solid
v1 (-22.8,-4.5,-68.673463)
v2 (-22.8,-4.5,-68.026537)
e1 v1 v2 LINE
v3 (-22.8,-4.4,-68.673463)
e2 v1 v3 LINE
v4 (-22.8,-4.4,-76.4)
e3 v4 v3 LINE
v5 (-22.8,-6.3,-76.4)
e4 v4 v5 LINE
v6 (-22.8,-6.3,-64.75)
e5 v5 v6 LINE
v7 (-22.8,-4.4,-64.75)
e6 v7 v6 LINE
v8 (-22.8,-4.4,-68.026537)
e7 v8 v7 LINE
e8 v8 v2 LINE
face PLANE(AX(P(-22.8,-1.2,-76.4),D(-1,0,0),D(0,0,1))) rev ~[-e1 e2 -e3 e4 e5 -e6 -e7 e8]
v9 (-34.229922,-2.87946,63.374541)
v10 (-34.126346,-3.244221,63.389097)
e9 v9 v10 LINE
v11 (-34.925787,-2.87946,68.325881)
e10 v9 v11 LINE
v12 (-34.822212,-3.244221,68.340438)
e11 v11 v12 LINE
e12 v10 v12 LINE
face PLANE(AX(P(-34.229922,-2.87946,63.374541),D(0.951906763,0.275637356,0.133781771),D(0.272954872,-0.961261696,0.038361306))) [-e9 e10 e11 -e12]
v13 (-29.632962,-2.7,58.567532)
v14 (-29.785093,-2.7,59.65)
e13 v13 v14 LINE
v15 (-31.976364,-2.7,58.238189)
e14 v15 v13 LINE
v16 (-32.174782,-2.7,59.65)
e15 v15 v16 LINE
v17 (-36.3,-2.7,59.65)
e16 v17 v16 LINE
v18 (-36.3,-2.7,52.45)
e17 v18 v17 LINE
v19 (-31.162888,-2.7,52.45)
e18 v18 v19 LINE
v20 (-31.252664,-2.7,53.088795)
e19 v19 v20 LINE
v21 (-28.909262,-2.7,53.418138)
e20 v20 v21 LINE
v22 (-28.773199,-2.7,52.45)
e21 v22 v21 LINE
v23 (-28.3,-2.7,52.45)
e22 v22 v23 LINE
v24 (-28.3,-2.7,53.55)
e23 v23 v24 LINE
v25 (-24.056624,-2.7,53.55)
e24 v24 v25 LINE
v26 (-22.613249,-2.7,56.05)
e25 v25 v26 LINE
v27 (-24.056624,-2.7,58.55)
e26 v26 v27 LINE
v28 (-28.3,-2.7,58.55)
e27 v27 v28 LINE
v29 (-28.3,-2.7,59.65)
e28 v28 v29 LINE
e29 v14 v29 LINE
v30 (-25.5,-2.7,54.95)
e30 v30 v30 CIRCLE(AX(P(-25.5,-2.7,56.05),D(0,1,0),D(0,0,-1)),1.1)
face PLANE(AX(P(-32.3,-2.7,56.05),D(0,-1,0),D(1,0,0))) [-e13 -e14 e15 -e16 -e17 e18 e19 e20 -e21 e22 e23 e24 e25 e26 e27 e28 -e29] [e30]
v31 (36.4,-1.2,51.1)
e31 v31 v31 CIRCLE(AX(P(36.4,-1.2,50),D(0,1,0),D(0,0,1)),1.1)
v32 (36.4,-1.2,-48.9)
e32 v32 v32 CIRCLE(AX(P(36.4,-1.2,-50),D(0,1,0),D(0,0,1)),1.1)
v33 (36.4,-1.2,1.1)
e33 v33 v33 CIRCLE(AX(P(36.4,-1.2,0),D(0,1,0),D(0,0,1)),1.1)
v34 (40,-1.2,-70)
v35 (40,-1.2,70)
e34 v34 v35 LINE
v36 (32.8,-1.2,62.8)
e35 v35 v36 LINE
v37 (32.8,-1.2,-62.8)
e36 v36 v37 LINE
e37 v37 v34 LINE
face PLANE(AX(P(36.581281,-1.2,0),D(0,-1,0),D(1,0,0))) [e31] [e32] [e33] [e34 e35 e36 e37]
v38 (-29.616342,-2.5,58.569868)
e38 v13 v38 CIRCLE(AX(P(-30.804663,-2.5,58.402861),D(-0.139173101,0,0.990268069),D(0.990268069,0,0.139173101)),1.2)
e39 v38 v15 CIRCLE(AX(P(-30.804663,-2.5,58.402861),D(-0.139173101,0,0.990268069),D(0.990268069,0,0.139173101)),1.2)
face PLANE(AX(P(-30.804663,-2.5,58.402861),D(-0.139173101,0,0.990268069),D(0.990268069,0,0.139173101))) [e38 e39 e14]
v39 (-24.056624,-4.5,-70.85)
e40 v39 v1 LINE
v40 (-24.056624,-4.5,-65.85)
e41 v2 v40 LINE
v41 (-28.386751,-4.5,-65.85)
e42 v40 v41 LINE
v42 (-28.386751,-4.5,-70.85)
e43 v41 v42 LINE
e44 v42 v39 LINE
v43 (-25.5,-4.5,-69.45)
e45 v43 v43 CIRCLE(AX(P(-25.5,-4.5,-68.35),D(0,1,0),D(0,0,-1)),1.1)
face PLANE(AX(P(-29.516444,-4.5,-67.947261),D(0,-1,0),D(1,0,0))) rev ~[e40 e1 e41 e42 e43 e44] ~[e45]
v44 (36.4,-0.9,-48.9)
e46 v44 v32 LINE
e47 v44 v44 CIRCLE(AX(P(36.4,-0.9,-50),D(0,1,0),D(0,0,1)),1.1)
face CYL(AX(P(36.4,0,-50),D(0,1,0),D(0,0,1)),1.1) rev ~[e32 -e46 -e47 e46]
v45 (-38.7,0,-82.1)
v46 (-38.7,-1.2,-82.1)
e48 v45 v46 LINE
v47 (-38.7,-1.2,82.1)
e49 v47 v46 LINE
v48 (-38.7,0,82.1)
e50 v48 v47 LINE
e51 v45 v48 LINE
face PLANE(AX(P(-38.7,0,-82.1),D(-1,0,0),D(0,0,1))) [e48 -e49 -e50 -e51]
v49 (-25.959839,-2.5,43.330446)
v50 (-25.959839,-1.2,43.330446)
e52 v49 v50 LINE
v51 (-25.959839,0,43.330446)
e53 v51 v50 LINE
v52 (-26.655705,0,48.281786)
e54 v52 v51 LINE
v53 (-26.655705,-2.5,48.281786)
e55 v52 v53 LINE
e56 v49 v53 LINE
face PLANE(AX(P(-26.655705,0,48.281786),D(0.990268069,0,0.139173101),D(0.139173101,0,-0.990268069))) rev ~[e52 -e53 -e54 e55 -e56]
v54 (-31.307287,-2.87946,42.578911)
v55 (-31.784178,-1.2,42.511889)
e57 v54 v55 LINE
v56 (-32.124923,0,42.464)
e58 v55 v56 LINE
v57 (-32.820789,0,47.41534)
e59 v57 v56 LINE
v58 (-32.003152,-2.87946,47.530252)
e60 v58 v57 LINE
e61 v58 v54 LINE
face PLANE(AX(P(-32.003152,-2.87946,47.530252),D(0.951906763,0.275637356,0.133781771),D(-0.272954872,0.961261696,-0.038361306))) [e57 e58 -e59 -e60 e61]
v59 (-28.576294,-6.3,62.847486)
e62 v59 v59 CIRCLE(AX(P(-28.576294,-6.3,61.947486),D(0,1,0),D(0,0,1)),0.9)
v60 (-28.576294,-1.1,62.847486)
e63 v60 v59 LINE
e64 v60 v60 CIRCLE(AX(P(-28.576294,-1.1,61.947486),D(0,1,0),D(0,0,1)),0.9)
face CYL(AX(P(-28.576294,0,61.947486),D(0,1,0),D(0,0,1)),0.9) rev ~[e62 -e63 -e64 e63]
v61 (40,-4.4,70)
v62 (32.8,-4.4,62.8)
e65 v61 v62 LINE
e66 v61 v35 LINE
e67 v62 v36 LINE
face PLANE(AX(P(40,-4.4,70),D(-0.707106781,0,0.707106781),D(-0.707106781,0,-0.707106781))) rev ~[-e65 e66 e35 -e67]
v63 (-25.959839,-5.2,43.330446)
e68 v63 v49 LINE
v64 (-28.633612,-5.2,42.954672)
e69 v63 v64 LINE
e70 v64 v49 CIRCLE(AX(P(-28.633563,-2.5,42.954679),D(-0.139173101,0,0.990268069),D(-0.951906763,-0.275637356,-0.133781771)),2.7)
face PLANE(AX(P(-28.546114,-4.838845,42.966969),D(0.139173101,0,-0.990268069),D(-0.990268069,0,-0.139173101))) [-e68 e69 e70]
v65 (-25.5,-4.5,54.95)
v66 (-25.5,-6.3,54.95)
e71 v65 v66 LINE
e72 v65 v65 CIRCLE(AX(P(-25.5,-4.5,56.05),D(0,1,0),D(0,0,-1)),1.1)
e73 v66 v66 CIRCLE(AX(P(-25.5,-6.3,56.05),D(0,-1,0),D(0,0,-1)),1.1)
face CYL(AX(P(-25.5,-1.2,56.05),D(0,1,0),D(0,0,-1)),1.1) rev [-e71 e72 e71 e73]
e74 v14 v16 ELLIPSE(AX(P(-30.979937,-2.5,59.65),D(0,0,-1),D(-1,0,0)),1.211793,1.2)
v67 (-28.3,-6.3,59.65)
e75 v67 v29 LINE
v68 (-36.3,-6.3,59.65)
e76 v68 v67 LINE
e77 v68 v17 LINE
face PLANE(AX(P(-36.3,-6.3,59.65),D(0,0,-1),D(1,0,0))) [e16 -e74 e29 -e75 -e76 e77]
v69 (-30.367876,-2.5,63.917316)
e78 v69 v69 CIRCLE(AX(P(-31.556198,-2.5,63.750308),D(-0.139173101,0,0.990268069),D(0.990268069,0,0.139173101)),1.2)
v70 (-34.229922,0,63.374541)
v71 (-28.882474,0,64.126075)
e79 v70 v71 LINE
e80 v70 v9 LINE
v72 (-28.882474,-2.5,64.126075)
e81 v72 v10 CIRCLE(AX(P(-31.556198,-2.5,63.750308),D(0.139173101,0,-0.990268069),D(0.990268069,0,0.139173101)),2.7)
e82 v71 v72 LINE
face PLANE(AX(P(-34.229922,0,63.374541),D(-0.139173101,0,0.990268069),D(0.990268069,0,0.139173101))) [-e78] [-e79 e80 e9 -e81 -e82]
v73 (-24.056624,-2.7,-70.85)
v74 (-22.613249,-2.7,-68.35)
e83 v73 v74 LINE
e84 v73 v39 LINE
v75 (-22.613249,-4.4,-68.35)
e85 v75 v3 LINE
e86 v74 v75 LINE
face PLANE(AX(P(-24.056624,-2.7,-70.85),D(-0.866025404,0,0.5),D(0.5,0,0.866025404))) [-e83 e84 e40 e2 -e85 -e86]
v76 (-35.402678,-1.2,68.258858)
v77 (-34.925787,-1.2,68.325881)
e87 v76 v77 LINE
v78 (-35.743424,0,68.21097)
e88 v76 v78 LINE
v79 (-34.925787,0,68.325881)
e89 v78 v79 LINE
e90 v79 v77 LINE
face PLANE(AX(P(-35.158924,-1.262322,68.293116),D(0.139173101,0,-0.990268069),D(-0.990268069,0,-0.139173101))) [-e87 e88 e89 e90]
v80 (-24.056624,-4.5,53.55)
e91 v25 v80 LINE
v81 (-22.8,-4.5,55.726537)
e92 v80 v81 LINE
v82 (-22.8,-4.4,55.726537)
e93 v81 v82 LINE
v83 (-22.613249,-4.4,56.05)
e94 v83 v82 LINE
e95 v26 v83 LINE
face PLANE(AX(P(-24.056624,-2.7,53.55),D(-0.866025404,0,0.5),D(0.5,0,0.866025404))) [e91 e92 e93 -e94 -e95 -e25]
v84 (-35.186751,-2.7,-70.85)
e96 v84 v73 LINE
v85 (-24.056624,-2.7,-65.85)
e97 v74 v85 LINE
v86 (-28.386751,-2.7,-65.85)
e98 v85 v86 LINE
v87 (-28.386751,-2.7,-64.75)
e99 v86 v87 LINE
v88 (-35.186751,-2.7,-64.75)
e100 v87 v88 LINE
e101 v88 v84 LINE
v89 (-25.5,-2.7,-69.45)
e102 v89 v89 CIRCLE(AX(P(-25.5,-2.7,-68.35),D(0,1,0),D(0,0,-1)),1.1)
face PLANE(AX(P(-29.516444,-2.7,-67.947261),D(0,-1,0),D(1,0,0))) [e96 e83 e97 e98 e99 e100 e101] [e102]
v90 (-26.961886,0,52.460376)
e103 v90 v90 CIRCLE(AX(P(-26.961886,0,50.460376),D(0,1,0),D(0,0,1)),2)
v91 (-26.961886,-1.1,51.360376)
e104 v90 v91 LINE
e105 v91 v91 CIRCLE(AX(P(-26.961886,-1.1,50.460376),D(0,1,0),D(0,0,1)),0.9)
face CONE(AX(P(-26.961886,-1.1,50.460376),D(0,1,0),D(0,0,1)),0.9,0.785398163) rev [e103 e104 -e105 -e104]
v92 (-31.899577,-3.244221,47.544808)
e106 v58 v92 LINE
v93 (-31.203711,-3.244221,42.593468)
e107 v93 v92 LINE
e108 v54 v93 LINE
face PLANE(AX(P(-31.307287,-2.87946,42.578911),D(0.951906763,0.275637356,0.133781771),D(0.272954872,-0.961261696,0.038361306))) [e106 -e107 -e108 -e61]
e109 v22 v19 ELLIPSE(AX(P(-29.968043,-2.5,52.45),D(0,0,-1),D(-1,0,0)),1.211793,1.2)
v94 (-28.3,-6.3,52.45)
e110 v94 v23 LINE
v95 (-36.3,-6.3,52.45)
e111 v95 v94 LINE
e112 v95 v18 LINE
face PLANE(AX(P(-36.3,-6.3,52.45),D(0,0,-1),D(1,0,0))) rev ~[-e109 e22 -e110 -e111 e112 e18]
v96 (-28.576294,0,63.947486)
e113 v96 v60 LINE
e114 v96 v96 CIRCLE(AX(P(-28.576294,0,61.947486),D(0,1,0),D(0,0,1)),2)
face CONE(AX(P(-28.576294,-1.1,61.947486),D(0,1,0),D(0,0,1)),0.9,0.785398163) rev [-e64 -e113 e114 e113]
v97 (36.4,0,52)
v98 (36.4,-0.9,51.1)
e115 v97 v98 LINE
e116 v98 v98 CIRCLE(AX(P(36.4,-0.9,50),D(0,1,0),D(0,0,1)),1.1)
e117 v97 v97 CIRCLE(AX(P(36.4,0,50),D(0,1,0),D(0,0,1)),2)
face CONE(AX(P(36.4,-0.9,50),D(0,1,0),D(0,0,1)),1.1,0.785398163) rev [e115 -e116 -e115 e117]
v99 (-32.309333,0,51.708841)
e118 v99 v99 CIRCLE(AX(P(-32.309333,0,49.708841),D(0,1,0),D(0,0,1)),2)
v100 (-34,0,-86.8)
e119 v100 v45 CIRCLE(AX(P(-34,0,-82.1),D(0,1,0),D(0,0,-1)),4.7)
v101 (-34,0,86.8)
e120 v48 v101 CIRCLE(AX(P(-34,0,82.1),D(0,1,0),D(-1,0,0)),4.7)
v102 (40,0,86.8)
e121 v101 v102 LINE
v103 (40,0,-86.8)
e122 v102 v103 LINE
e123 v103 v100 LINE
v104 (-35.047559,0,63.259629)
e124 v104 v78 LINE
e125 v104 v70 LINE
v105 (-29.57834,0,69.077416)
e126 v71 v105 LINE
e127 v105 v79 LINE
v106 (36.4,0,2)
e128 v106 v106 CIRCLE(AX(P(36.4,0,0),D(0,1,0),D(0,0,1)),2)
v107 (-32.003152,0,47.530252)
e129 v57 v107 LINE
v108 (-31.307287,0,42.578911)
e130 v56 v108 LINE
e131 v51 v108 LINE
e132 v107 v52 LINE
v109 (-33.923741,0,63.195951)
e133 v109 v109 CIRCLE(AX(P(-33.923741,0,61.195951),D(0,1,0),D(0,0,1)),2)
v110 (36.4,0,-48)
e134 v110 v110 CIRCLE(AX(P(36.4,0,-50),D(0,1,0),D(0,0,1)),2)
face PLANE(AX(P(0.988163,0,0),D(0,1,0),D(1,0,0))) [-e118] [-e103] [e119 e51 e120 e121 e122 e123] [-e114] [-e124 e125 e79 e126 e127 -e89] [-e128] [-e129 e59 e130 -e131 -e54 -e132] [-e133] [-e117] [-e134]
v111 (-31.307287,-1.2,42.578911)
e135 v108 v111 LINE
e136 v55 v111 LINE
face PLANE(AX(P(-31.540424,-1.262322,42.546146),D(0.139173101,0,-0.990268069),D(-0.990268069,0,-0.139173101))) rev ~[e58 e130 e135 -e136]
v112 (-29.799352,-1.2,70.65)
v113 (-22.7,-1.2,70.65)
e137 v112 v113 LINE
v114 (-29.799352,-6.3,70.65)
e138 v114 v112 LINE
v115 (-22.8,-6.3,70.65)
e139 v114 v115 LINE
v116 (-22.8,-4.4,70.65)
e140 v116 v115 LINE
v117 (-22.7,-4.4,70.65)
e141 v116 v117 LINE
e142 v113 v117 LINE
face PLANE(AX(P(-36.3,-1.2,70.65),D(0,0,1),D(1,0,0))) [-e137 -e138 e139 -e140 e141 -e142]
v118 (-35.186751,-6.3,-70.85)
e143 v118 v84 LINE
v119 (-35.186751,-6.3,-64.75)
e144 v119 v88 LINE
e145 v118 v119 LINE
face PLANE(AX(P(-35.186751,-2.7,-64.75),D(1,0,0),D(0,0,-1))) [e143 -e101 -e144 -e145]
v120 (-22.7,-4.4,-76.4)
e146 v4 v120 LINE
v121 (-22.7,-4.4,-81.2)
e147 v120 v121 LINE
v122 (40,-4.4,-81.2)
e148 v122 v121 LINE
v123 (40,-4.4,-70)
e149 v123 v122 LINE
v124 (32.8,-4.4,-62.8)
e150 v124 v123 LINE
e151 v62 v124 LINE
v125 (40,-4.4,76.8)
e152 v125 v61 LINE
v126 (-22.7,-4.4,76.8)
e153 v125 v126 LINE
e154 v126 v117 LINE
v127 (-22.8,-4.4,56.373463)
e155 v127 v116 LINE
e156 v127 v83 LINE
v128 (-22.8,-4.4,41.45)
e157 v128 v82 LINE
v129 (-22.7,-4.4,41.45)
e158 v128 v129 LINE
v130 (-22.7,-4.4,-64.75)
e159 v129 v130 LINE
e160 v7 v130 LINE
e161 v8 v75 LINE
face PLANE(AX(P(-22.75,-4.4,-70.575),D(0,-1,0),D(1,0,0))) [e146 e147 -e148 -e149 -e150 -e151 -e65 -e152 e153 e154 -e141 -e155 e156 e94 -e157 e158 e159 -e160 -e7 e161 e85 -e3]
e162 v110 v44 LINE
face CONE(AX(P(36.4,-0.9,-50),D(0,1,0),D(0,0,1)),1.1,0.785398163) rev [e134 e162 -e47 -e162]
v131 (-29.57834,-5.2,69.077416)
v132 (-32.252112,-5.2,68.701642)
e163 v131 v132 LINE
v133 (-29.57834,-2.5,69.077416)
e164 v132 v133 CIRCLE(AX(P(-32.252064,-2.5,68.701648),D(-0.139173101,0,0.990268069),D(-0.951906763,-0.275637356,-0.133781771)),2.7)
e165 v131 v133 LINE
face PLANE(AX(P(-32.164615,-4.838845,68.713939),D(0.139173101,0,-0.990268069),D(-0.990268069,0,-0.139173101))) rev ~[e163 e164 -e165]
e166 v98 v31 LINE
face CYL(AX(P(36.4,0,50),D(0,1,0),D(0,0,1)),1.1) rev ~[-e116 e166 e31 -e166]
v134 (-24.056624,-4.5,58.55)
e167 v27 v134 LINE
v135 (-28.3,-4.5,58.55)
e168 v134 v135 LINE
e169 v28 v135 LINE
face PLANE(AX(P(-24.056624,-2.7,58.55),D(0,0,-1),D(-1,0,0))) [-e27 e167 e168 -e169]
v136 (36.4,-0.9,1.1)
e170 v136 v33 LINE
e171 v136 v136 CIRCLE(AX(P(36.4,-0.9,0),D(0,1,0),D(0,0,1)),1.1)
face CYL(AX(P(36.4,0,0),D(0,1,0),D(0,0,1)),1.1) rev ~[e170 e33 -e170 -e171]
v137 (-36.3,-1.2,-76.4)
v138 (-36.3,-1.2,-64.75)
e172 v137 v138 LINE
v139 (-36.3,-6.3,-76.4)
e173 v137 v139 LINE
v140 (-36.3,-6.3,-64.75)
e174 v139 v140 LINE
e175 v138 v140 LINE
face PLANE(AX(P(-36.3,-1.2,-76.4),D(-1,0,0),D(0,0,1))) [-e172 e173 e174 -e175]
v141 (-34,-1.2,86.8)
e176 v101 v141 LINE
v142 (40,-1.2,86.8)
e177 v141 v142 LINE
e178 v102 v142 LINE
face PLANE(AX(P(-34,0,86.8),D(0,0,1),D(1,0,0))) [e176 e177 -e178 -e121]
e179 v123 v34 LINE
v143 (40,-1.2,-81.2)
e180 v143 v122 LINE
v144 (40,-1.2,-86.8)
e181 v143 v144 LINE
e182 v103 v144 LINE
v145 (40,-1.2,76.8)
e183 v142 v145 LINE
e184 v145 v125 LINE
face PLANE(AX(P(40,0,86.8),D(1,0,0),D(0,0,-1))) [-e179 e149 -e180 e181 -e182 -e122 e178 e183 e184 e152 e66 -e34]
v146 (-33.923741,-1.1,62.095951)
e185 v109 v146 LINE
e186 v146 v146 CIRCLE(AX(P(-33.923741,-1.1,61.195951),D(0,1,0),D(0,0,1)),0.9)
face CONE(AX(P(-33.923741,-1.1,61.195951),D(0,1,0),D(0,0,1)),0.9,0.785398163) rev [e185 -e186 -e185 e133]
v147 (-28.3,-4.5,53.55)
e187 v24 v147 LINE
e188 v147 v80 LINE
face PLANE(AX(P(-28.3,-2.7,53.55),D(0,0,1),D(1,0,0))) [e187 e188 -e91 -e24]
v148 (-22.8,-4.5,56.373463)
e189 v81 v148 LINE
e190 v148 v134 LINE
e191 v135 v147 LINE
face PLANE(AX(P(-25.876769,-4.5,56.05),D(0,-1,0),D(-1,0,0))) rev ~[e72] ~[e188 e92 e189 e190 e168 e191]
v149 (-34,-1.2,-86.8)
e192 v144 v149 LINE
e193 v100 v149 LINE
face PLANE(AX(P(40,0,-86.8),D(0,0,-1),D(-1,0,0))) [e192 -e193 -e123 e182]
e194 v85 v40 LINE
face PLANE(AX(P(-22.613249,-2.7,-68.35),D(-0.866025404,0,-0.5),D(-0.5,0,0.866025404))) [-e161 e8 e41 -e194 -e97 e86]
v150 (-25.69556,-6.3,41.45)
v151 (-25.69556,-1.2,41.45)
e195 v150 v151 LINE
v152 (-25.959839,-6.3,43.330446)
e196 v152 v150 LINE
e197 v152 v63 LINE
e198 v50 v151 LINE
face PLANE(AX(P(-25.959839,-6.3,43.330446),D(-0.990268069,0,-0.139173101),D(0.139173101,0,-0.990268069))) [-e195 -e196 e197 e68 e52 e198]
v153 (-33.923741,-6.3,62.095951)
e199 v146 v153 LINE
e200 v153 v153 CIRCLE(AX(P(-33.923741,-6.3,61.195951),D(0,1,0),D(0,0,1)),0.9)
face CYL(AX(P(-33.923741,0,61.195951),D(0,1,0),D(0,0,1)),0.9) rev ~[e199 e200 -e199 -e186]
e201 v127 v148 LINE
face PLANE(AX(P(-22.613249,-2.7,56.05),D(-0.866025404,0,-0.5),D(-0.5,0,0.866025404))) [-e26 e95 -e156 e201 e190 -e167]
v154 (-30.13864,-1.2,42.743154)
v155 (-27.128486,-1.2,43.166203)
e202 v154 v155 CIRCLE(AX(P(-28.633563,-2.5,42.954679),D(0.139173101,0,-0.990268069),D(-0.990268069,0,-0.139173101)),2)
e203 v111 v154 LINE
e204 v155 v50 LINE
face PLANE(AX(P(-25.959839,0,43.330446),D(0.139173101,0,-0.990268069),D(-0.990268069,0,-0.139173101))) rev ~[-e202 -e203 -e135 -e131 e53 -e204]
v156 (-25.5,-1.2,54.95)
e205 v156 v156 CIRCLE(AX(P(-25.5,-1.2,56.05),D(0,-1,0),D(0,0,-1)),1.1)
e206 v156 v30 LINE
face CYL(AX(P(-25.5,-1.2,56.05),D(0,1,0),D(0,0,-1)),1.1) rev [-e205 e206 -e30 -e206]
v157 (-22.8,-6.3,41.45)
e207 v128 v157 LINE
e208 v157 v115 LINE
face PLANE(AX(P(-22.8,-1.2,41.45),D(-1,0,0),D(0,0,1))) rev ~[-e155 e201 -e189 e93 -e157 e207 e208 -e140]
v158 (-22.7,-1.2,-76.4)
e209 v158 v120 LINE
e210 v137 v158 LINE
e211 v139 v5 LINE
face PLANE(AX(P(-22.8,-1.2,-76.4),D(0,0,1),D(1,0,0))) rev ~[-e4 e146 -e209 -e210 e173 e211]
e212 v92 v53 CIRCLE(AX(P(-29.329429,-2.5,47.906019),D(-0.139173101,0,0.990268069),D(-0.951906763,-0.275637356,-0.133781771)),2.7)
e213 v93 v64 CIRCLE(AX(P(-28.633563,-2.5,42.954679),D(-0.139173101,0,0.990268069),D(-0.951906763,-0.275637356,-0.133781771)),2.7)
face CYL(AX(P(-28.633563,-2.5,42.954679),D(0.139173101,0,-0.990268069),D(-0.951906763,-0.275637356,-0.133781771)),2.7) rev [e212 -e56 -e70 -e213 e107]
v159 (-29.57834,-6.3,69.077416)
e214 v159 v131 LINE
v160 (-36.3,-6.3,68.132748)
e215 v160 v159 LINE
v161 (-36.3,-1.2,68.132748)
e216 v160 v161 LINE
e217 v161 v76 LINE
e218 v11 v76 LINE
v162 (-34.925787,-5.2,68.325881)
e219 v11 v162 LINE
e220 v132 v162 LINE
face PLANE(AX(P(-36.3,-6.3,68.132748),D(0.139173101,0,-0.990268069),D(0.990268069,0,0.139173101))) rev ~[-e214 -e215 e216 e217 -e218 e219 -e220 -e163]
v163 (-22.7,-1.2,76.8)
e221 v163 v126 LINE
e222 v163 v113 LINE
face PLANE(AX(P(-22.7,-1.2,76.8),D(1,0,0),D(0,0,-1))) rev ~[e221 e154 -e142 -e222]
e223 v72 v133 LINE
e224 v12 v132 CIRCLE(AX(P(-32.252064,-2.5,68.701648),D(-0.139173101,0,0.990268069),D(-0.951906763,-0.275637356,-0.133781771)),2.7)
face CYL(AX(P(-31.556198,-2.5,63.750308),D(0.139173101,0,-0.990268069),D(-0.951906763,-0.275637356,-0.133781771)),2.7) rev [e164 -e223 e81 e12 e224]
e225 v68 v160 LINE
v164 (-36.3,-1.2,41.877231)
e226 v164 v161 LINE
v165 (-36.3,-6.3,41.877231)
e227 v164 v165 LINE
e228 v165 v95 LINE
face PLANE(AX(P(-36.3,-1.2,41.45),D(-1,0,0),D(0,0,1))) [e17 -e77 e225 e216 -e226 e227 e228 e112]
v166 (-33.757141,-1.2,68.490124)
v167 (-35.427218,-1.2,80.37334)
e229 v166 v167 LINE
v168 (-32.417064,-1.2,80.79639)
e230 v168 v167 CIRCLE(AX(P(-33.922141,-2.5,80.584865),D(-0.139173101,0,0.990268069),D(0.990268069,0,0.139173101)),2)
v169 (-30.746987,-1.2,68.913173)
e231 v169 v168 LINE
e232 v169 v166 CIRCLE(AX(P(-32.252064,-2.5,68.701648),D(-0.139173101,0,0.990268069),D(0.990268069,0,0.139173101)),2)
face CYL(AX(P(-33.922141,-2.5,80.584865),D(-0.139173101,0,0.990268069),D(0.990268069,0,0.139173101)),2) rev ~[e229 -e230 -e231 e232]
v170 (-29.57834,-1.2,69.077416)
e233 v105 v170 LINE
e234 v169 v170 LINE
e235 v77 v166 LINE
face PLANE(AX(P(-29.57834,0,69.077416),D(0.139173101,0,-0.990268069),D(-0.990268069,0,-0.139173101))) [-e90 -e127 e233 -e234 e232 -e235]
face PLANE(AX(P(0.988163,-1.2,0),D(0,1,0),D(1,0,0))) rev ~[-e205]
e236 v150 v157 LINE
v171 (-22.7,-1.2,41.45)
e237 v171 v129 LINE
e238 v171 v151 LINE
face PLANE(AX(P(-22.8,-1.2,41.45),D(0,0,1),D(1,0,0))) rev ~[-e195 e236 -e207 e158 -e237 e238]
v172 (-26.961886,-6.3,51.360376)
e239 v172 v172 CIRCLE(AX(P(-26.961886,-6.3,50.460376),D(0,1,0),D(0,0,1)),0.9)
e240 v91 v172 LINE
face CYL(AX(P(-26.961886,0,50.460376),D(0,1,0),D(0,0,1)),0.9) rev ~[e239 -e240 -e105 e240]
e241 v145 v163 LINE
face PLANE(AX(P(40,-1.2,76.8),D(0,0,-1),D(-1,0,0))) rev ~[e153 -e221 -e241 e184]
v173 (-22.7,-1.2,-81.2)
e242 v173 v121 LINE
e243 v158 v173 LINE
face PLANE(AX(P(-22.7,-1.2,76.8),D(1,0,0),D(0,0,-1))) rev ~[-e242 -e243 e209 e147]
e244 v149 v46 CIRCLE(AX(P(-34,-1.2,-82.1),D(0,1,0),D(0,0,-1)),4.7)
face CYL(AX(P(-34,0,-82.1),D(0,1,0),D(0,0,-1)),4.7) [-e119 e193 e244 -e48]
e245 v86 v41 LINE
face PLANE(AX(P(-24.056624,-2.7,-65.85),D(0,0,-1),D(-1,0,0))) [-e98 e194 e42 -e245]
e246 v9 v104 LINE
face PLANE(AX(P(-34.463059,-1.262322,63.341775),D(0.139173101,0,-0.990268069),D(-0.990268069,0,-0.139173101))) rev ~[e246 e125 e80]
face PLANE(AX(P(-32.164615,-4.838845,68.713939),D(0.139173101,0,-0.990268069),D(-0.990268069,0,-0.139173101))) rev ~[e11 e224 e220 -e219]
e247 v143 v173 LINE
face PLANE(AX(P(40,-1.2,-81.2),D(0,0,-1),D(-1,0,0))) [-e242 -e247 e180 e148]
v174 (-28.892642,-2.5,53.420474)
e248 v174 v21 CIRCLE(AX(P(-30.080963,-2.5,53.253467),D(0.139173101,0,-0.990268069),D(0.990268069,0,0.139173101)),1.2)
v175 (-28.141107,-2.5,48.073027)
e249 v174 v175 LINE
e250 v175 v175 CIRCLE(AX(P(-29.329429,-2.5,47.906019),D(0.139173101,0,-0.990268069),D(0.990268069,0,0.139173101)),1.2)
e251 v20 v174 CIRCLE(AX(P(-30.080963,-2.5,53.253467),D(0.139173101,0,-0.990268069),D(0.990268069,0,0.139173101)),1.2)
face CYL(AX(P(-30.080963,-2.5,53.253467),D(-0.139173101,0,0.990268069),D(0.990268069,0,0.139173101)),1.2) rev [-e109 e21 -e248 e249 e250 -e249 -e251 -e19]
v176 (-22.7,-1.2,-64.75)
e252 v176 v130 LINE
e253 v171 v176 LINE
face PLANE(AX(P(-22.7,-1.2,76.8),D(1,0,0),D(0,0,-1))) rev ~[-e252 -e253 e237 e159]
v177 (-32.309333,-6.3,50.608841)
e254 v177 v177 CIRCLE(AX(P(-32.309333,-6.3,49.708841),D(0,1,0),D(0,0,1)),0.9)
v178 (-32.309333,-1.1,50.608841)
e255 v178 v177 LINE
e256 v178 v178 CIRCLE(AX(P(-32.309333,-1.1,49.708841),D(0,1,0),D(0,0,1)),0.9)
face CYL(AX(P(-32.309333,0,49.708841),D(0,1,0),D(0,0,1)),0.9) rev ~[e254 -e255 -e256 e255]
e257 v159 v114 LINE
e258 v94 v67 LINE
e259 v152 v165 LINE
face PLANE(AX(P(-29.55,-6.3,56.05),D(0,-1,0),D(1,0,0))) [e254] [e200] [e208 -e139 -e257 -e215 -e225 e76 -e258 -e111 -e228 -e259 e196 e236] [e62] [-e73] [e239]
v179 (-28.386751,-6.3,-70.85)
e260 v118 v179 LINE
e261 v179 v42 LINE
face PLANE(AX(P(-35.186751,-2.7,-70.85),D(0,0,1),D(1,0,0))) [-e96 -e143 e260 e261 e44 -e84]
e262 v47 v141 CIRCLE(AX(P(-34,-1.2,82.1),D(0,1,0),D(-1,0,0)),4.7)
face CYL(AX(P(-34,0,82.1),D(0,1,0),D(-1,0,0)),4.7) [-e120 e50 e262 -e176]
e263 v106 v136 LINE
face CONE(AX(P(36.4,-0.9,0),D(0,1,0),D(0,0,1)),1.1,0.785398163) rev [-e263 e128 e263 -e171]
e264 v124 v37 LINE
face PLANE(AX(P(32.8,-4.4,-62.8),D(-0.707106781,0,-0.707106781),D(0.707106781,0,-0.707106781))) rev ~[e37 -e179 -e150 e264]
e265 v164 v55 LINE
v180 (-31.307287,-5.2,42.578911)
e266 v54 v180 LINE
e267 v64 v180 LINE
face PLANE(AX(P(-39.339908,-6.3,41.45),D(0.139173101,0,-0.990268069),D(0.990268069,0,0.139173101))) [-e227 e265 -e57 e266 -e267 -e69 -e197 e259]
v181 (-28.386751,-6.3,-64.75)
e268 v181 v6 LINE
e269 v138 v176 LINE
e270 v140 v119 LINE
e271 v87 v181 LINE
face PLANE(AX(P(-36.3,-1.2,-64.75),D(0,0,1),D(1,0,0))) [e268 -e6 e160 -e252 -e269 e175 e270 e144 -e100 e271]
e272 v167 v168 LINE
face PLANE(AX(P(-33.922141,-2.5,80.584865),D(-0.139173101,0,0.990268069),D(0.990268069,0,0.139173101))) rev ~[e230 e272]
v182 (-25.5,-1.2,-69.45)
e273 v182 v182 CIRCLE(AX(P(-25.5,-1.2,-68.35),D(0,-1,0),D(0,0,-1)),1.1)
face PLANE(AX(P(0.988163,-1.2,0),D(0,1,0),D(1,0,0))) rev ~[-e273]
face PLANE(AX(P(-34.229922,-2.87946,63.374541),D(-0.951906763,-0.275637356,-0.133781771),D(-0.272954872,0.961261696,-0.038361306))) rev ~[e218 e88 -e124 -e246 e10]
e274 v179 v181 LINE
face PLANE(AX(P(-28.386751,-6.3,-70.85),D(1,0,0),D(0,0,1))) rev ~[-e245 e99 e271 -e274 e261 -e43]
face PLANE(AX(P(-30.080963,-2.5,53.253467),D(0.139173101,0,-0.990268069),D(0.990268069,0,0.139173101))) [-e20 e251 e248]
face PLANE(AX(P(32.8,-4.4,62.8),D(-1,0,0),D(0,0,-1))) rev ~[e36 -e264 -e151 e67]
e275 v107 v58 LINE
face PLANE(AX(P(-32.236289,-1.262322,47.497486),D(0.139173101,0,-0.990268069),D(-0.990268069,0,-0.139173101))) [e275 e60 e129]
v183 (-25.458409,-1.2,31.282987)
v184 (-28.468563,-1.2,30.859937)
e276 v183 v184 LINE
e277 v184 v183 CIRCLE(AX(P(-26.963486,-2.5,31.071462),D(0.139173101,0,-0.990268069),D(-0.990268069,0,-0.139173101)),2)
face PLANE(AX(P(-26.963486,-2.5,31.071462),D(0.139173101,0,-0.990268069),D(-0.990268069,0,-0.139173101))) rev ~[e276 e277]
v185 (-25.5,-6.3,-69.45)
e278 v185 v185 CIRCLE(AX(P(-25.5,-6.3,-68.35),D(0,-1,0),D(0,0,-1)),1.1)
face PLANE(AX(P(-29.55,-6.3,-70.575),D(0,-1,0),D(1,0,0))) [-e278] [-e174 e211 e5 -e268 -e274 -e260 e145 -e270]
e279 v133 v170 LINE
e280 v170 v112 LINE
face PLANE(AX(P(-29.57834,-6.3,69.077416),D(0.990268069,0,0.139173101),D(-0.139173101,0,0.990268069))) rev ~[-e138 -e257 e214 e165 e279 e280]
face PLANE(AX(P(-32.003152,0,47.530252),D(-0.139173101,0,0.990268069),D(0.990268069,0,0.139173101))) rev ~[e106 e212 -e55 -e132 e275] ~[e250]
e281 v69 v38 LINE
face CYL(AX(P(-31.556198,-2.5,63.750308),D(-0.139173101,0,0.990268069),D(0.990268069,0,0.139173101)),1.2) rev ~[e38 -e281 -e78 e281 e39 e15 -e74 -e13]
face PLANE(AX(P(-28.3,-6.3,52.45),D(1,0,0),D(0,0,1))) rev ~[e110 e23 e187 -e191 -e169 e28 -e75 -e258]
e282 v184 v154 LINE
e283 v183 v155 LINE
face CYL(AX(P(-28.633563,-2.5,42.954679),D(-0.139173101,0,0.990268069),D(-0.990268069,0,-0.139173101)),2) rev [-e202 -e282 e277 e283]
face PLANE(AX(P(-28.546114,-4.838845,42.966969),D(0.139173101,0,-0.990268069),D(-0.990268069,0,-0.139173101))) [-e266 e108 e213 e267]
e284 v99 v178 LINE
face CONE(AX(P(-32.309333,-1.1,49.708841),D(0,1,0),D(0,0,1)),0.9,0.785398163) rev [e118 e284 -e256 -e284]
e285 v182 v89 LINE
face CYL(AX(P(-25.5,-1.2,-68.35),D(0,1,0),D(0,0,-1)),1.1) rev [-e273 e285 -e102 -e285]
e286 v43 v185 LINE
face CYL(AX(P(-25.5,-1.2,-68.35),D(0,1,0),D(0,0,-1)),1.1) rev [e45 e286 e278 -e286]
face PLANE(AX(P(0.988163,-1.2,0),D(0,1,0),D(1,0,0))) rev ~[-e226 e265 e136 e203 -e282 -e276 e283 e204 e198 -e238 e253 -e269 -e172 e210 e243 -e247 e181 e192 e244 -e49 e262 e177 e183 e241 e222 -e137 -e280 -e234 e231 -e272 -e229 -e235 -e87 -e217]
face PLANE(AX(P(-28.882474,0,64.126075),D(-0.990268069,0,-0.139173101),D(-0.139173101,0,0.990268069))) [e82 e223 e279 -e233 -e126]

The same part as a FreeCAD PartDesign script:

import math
import FreeCAD as App
import Part
import Sketcher
from FreeCAD import Vector
Q = App.Units.Quantity


def edges_at(feature, points):
    """Names of the edges that pass closest to the given points."""
    edges = feature.Shape.Edges
    near = lambda p: min(range(len(edges)), key=lambda i: edges[i].distToShape(Part.Vertex(*p))[0])
    return sorted({f"Edge{near(p) + 1}" for p in points})


def add_polygon(sketch, points):
    """Adds a closed chain of lines whose ends are joined by coincident constraints."""
    first, n = sketch.GeometryCount, len(points)
    for a, b in zip(points, points[1:] + points[:1]):
        sketch.addGeometry(Part.LineSegment(App.Vector(*a, 0), App.Vector(*b, 0)), False)
    for i in range(n):
        sketch.addConstraint(Sketcher.Constraint("Coincident", first + i, 2, first + (i + 1) % n, 1))

doc = App.newDocument("Part")
body = doc.addObject("PartDesign::Body", "Body")

sketch1 = body.newObject("Sketcher::SketchObject", "Sketch")
sketch1.AttachmentSupport = (doc.getObject("XZ_Plane"), [""])
sketch1.MapMode = "FlatFace"
sketch1.addGeometry([
    Part.LineSegment(Vector(40, -86.8, 0), Vector(-34, -86.8, 0)),
    Part.ArcOfCircle(Part.Circle(Vector(-34, -82.1, 0), Vector(0, 0, 1), 4.7), math.radians(180), math.radians(270)),
    Part.LineSegment(Vector(-38.7, -82.1, 0), Vector(-38.7, 82.1, 0)),
    Part.ArcOfCircle(Part.Circle(Vector(-34, 82.1, 0), Vector(0, 0, 1), 4.7), math.radians(90), math.radians(180)),
    Part.LineSegment(Vector(-34, 86.8, 0), Vector(40, 86.8, 0)),
    Part.LineSegment(Vector(40, 86.8, 0), Vector(40, -86.8, 0)),
], False)
sketch1.addConstraint([
    Sketcher.Constraint("Tangent", 0, 2, 1, 2),
    Sketcher.Constraint("Tangent", 1, 1, 2, 1),
    Sketcher.Constraint("Tangent", 2, 2, 3, 2),
    Sketcher.Constraint("Tangent", 3, 1, 4, 1),
    Sketcher.Constraint("Coincident", 4, 2, 5, 1),
    Sketcher.Constraint("Coincident", 5, 2, 0, 1),
    Sketcher.Constraint("Horizontal", 0),
    Sketcher.Constraint("Vertical", 2),
    Sketcher.Constraint("Horizontal", 4),
    Sketcher.Constraint("Vertical", 5),
    Sketcher.Constraint("Equal", 1, 3),
    Sketcher.Constraint("Radius", 1, 4.7),
    Sketcher.Constraint("DistanceX", 0, 2, 0, 1, 74.0),
    Sketcher.Constraint("DistanceY", 2, 1, 2, 2, 164.2),
    Sketcher.Constraint("DistanceX", 1, 3, -1, 1, 34.0),
    Sketcher.Constraint("DistanceY", 1, 3, -1, 1, 82.1),
])
pad1 = body.newObject("PartDesign::Pad", "Pad")
pad1.Profile = sketch1
pad1.Length = 1.2

sketch2 = body.newObject("Sketcher::SketchObject", "Sketch001")
sketch2.AttachmentSupport = (doc.getObject("XZ_Plane"), [""])
sketch2.MapMode = "FlatFace"
sketch2.AttachmentOffset = App.Placement(Vector(0, 0, 1.2), App.Rotation())
add_polygon(sketch2, [(40, -81), (40, 77), (-23, 77), (-23, -81)])
sketch2.addConstraint([
    Sketcher.Constraint("Vertical", 0),
    Sketcher.Constraint("Horizontal", 1),
    Sketcher.Constraint("Vertical", 2),
    Sketcher.Constraint("Horizontal", 3),
    Sketcher.Constraint("DistanceY", 0, 1, 0, 2, 158.0),
    Sketcher.Constraint("DistanceX", 1, 2, 1, 1, 62.7),
    Sketcher.Constraint("DistanceX", -1, 1, 0, 2, 40.0),
    Sketcher.Constraint("DistanceY", -1, 1, 0, 2, 76.8),
])
pad2 = body.newObject("PartDesign::Pad", "Pad001")
pad2.Profile = sketch2
pad2.Length = 3.2

sketch3 = body.newObject("Sketcher::SketchObject", "Sketch002")
sketch3.AttachmentSupport = (doc.getObject("XZ_Plane"), [""])
sketch3.MapMode = "FlatFace"
sketch3.AttachmentOffset = App.Placement(Vector(0, 0, 1.2), App.Rotation())
add_polygon(sketch3, [(-36.3, -64.8), (-36.3, -76.4), (-22.8, -76.4), (-22.8, -64.8)])
sketch3.addGeometry(Part.Circle(Vector(-25.5, -68.3, 0), Vector(0, 0, 1), 1.1), False)
add_polygon(sketch3, [(-36.3, 70.7), (-36.3, 41.5), (-22.8, 41.5), (-22.8, 70.7)])
sketch3.addGeometry(Part.Circle(Vector(-25.5, 56, 0), Vector(0, 0, 1), 1.1), False)
sketch3.addConstraint([
    Sketcher.Constraint("Vertical", 0),
    Sketcher.Constraint("Horizontal", 1),
    Sketcher.Constraint("Vertical", 2),
    Sketcher.Constraint("Horizontal", 3),
    Sketcher.Constraint("Vertical", 5),
    Sketcher.Constraint("Horizontal", 6),
    Sketcher.Constraint("Vertical", 7),
    Sketcher.Constraint("Horizontal", 8),
    Sketcher.Constraint("Equal", 4, 9),
    Sketcher.Constraint("Vertical", 4, 3, 9, 3),
    Sketcher.Constraint("Vertical", 3, 2, 5, 2),
    Sketcher.Constraint("Vertical", 2, 2, 6, 2),
    Sketcher.Constraint("Diameter", 4, 2.2),
    Sketcher.Constraint("DistanceX", 1, 1, 1, 2, 13.5),
    Sketcher.Constraint("DistanceY", 5, 2, 5, 1, 29.2),
    Sketcher.Constraint("DistanceY", 0, 2, 0, 1, 11.65),
    Sketcher.Constraint("DistanceX", 4, 3, -1, 1, 25.5),
    Sketcher.Constraint("DistanceX", 0, 2, -1, 1, 36.3),
    Sketcher.Constraint("DistanceY", 0, 2, -1, 1, 76.4),
    Sketcher.Constraint("DistanceY", 4, 3, 9, 3, 124.4),
    Sketcher.Constraint("DistanceY", 4, 3, 2, 2, 3.6),
    Sketcher.Constraint("DistanceY", 5, 2, 9, 3, 14.6),
])
pad3 = body.newObject("PartDesign::Pad", "Pad002")
pad3.Profile = sketch3
pad3.Length = 5.1

sketch4 = body.newObject("Sketcher::SketchObject", "Sketch003")
sketch4.AttachmentSupport = (doc.getObject("XZ_Plane"), [""])
sketch4.MapMode = "FlatFace"
sketch4.AttachmentOffset = App.Placement(Vector(0, 0, 1.2), App.Rotation())
add_polygon(sketch4, [(-22.8, -64.75), (-22.8, -76.4), (-22.7, -76.4), (-22.7, -64.75)])
add_polygon(sketch4, [(-22.8, 70.65), (-22.8, 41.45), (-22.7, 41.45), (-22.7, 70.65)])
sketch4.addConstraint([
    Sketcher.Constraint("Vertical", 0),
    Sketcher.Constraint("Horizontal", 1),
    Sketcher.Constraint("Vertical", 2),
    Sketcher.Constraint("Horizontal", 3),
    Sketcher.Constraint("Vertical", 4),
    Sketcher.Constraint("Horizontal", 5),
    Sketcher.Constraint("Vertical", 6),
    Sketcher.Constraint("Horizontal", 7),
    Sketcher.Constraint("Vertical", 3, 2, 4, 2),
    Sketcher.Constraint("Vertical", 2, 2, 5, 2),
    Sketcher.Constraint("DistanceX", 1, 1, 1, 2, 0.1),
    Sketcher.Constraint("DistanceY", 4, 2, 4, 1, 29.2),
    Sketcher.Constraint("DistanceY", 0, 2, 0, 1, 11.65),
    Sketcher.Constraint("DistanceX", 0, 2, -1, 1, 22.8),
    Sketcher.Constraint("DistanceY", 0, 2, -1, 1, 76.4),
    Sketcher.Constraint("DistanceY", 3, 2, 4, 2, 106.2),
])
pad4 = body.newObject("PartDesign::Pad", "Pad003")
pad4.Profile = sketch4
pad4.Length = 3.2

sketch5 = body.newObject("Sketcher::SketchObject", "Sketch004")
sketch5.AttachmentSupport = (doc.getObject("XZ_Plane"), [""])
sketch5.MapMode = "FlatFace"
sketch5.AttachmentOffset = App.Placement(Vector(0, 0, 6.3), App.Rotation())
add_polygon(sketch5, [(-25.7, 41.5), (-26, 43.3), (-39.3, 41.5)])
add_polygon(sketch5, [(-29.6, 69.1), (-29.8, 70.7), (-36.3, 70.7), (-36.3, 68.1)])
sketch5.addConstraint([
    Sketcher.Constraint("Horizontal", 2),
    Sketcher.Constraint("Horizontal", 4),
    Sketcher.Constraint("Vertical", 5),
    Sketcher.Constraint("Perpendicular", 0, 1),
    Sketcher.Constraint("Perpendicular", 1, 3),
    Sketcher.Constraint("Perpendicular", 3, 6),
    Sketcher.Constraint("Angle", 0, Q("98 deg")),
    Sketcher.Constraint("DistanceX", 4, 2, -1, 1, 36.3),
    Sketcher.Constraint("DistanceY", 2, 2, 3, 2, 29.2),
    Sketcher.Constraint("DistanceY", -1, 1, 1, 2, 41.45),
    Sketcher.Constraint("DistanceX", 2, 1, 2, 2, 13.644348),
    Sketcher.Constraint("DistanceY", 5, 2, 5, 1, 2.517252),
    Sketcher.Constraint("DistanceX", 6, 2, 0, 2, 3.618501),
    Sketcher.Constraint("Distance", 3, 1.588039),
])
pocket1 = body.newObject("PartDesign::Pocket", "Pocket")
pocket1.Profile = sketch5
pocket1.Length = 5.1

sketch6 = body.newObject("Sketcher::SketchObject", "Sketch005")
sketch6.AttachmentSupport = (doc.getObject("XZ_Plane"), [""])
sketch6.MapMode = "FlatFace"
add_polygon(sketch6, [(-34.2, 63.4), (-34.9, 68.3), (-29.6, 69.1), (-28.9, 64.1)])
add_polygon(sketch6, [(-26, 43.3), (-31.3, 42.6), (-32, 47.5), (-26.7, 48.3)])
sketch6.addConstraint([
    Sketcher.Constraint("Perpendicular", 0, 1),
    Sketcher.Constraint("Perpendicular", 1, 2),
    Sketcher.Constraint("Perpendicular", 2, 3),
    Sketcher.Constraint("Parallel", 3, 4),
    Sketcher.Constraint("Perpendicular", 4, 5),
    Sketcher.Constraint("Perpendicular", 5, 6),
    Sketcher.Constraint("Perpendicular", 6, 7),
    Sketcher.Constraint("Equal", 3, 4),
    Sketcher.Constraint("Equal", 2, 5),
    Sketcher.Constraint("Angle", 0, Q("98 deg")),
    Sketcher.Constraint("Distance", 0, 5.0),
    Sketcher.Constraint("Distance", 1, 5.4),
    Sketcher.Constraint("DistanceX", 0, 2, 4, 2, 3.618501),
    Sketcher.Constraint("DistanceY", -1, 1, 0, 2, 68.325881),
    Sketcher.Constraint("DistanceX", 1, 2, -1, 1, 29.57834),
    Sketcher.Constraint("DistanceY", -1, 1, 4, 2, 42.578911),
])
pocket2 = body.newObject("PartDesign::Pocket", "Pocket001")
pocket2.Profile = sketch6
pocket2.Length = 5.2
pocket2.Reversed = True

sketch7 = body.newObject("Sketcher::SketchObject", "Sketch006")
sketch7.Placement = App.Placement(Vector(-9.3972, 0, 66.864552), App.Rotation(Vector(0.990268069, 0, 0.139173101), Vector(0, 1.000000001, 0), Vector(-0.139173101, 0, 0.990268069), "ZXY"))
sketch7.addGeometry(Part.Circle(Vector(-22.4, -2.5, 0), Vector(0, 0, 1), 1.2), False)
sketch7.addConstraint([
    Sketcher.Constraint("Diameter", 0, 2.4),
    Sketcher.Constraint("DistanceY", 0, 3, -1, 1, 2.5),
    Sketcher.Constraint("DistanceX", 0, 3, -1, 1, 22.376767),
])
pocket3 = body.newObject("PartDesign::Pocket", "Pocket002")
pocket3.Profile = sketch7
pocket3.Length = 5.4

sketch8 = body.newObject("Sketcher::SketchObject", "Sketch007")
sketch8.Placement = App.Placement(Vector(-9.3972, 0, 66.864552), App.Rotation(Vector(0.990268069, 0, 0.139173101), Vector(0, 1.000000001, 0), Vector(-0.139173101, 0, 0.990268069), "ZXY"))
add_polygon(sketch8, [(-25.1, 0), (-25.9, 0), (-25.1, -2.9)])
sketch8.addConstraint([
    Sketcher.Constraint("Horizontal", 0),
    Sketcher.Constraint("Vertical", 2),
    Sketcher.Constraint("PointOnObject", 0, 2, -1),
    Sketcher.Constraint("Angle", 1, Q("-74 deg")),
    Sketcher.Constraint("Distance", 1, 2.995501),
    Sketcher.Constraint("DistanceX", 0, 2, -1, 1, 25.902439),
])
pocket4 = body.newObject("PartDesign::Pocket", "Pocket003")
pocket4.Profile = sketch8
pocket4.Length = 5
pocket4.Reversed = True

sketch9 = body.newObject("Sketcher::SketchObject", "Sketch008")
sketch9.Placement = App.Placement(Vector(-9.3972, 0, 66.864552), App.Rotation(Vector(0.990268069, 0, 0.139173101), Vector(0, 1.000000001, 0), Vector(-0.139173101, 0, 0.990268069), "ZXY"))
sketch9.addGeometry([
    Part.LineSegment(Vector(-24.97, -3.24, 0), Vector(-25.08, -2.88, 0)),
    Part.LineSegment(Vector(-25.08, -2.88, 0), Vector(-25.08, -6.3, 0)),
    Part.LineSegment(Vector(-25.08, -6.3, 0), Vector(-19.68, -6.3, 0)),
    Part.LineSegment(Vector(-19.68, -6.3, 0), Vector(-19.68, -2.5, 0)),
    Part.ArcOfCircle(Part.Circle(Vector(-22.38, -2.5, 0), Vector(0, 0, 1), 2.7), math.radians(-164), math.radians(0)),
], False)
sketch9.addConstraint([
    Sketcher.Constraint("Coincident", 0, 2, 1, 1),
    Sketcher.Constraint("Coincident", 1, 2, 2, 1),
    Sketcher.Constraint("Coincident", 2, 2, 3, 1),
    Sketcher.Constraint("Tangent", 3, 2, 4, 2),
    Sketcher.Constraint("Tangent", 4, 1, 0, 1),
    Sketcher.Constraint("Vertical", 1),
    Sketcher.Constraint("Horizontal", 2),
    Sketcher.Constraint("Vertical", 3),
    Sketcher.Constraint("Radius", 4, 2.7),
    Sketcher.Constraint("Angle", 0, Q("106 deg")),
    Sketcher.Constraint("DistanceX", 2, 1, 2, 2, 5.4),
    Sketcher.Constraint("DistanceY", 3, 1, 3, 2, 3.8),
    Sketcher.Constraint("DistanceY", 4, 3, -1, 1, 2.5),
    Sketcher.Constraint("DistanceX", 4, 3, -1, 1, 22.376767),
])
pad5 = body.newObject("PartDesign::Pad", "Pad004")
pad5.Profile = sketch9
pad5.Length = 5

sketch10 = body.newObject("Sketcher::SketchObject", "Sketch009")
sketch10.Placement = App.Placement(Vector(-7.17043, 0, 51.020263), App.Rotation(Vector(-0.990268069, 0, -0.139173101), Vector(0, 1.000000001, 0), Vector(0.139173101, 0, -0.990268069), "ZXY"))
add_polygon(sketch10, [(25.9, 0), (25.1, 0), (25.1, -2.9)])
sketch10.addConstraint([
    Sketcher.Constraint("Horizontal", 0),
    Sketcher.Constraint("Vertical", 1),
    Sketcher.Constraint("PointOnObject", 0, 2, -1),
    Sketcher.Constraint("Angle", 2, Q("74 deg")),
    Sketcher.Constraint("Distance", 2, 2.995501),
    Sketcher.Constraint("DistanceX", -1, 1, 2, 2, 25.902439),
])
pocket5 = body.newObject("PartDesign::Pocket", "Pocket004")
pocket5.Profile = sketch10
pocket5.Length = 5
pocket5.Reversed = True

sketch11 = body.newObject("Sketcher::SketchObject", "Sketch010")
sketch11.Placement = App.Placement(Vector(-6.474565, 0, 46.068923), App.Rotation(Vector(-0.990268069, 0, -0.139173101), Vector(0, 1.000000001, 0), Vector(0.139173101, 0, -0.990268069), "ZXY"))
sketch11.addGeometry([
    Part.LineSegment(Vector(25.08, -2.88, 0), Vector(24.97, -3.24, 0)),
    Part.ArcOfCircle(Part.Circle(Vector(22.38, -2.5, 0), Vector(0, 0, 1), 2.7), math.radians(180), math.radians(344)),
    Part.LineSegment(Vector(19.68, -2.5, 0), Vector(19.68, -6.3, 0)),
    Part.LineSegment(Vector(19.68, -6.3, 0), Vector(25.08, -6.3, 0)),
    Part.LineSegment(Vector(25.08, -6.3, 0), Vector(25.08, -2.88, 0)),
], False)
sketch11.addConstraint([
    Sketcher.Constraint("Tangent", 0, 2, 1, 2),
    Sketcher.Constraint("Tangent", 1, 1, 2, 1),
    Sketcher.Constraint("Coincident", 2, 2, 3, 1),
    Sketcher.Constraint("Coincident", 3, 2, 4, 1),
    Sketcher.Constraint("Coincident", 4, 2, 0, 1),
    Sketcher.Constraint("Vertical", 2),
    Sketcher.Constraint("Horizontal", 3),
    Sketcher.Constraint("Vertical", 4),
    Sketcher.Constraint("Radius", 1, 2.7),
    Sketcher.Constraint("Angle", 0, Q("-106 deg")),
    Sketcher.Constraint("DistanceX", 3, 1, 3, 2, 5.4),
    Sketcher.Constraint("DistanceY", 2, 2, 2, 1, 3.8),
    Sketcher.Constraint("DistanceY", 1, 3, -1, 1, 2.5),
    Sketcher.Constraint("DistanceX", -1, 1, 1, 3, 22.376767),
])
pad6 = body.newObject("PartDesign::Pad", "Pad005")
pad6.Profile = sketch11
pad6.Length = 5
pad6.Reversed = True

sketch12 = body.newObject("Sketcher::SketchObject", "Sketch011")
sketch12.AttachmentSupport = (doc.getObject("XZ_Plane"), [""])
sketch12.MapMode = "FlatFace"
sketch12.AttachmentOffset = App.Placement(Vector(0, 0, 6.3), App.Rotation())
add_polygon(sketch12, [(-36, 60), (-36, 52), (-28, 52), (-28, 60)])
sketch12.addConstraint([
    Sketcher.Constraint("Vertical", 0),
    Sketcher.Constraint("Horizontal", 1),
    Sketcher.Constraint("Vertical", 2),
    Sketcher.Constraint("Horizontal", 3),
    Sketcher.Constraint("DistanceX", 1, 1, 1, 2, 8.0),
    Sketcher.Constraint("DistanceY", 0, 2, 0, 1, 7.2),
    Sketcher.Constraint("DistanceX", 0, 2, -1, 1, 36.3),
    Sketcher.Constraint("DistanceY", -1, 1, 0, 2, 52.45),
])
pocket6 = body.newObject("PartDesign::Pocket", "Pocket005")
pocket6.Profile = sketch12
pocket6.Length = 3.6

sketch13 = body.newObject("Sketcher::SketchObject", "Sketch012")
sketch13.AttachmentSupport = (doc.getObject("XZ_Plane"), [""])
sketch13.MapMode = "FlatFace"
sketch13.AttachmentOffset = App.Placement(Vector(0, 0, 2.7), App.Rotation())
add_polygon(sketch13, [(-24.1, 58.5), (-28.3, 58.5), (-28.3, 53.5), (-24.1, 53.5), (-22.6, 56)])
sketch13.addConstraint([
    Sketcher.Constraint("Horizontal", 0),
    Sketcher.Constraint("Vertical", 1),
    Sketcher.Constraint("Horizontal", 2),
    Sketcher.Constraint("Vertical", 2, 2, 4, 2),
    Sketcher.Constraint("Equal", 3, 4),
    Sketcher.Constraint("DistanceY", 1, 2, 1, 1, 5.0),
    Sketcher.Constraint("Angle", 3, Q("60 deg")),
    Sketcher.Constraint("DistanceX", 0, 2, -1, 1, 28.3),
    Sketcher.Constraint("DistanceY", -1, 1, 0, 2, 58.55),
    Sketcher.Constraint("DistanceX", 0, 2, 0, 1, 4.243376),
])
pocket7 = body.newObject("PartDesign::Pocket", "Pocket006")
pocket7.Profile = sketch13
pocket7.Length = 1.8
pocket7.Reversed = True

sketch14 = body.newObject("Sketcher::SketchObject", "Sketch013")
sketch14.Placement = App.Placement(Vector(-7.921965, 0, 56.367711), App.Rotation(Vector(-0.990268069, 0, -0.139173101), Vector(0, 1.000000001, 0), Vector(0.139173101, 0, -0.990268069), "ZXY"))
sketch14.addGeometry(Part.Circle(Vector(22.4, -2.5, 0), Vector(0, 0, 1), 1.2), False)
sketch14.addConstraint([
    Sketcher.Constraint("Diameter", 0, 2.4),
    Sketcher.Constraint("DistanceY", 0, 3, -1, 1, 2.5),
    Sketcher.Constraint("DistanceX", -1, 1, 0, 3, 22.376767),
])
pocket8 = body.newObject("PartDesign::Pocket", "Pocket007")
pocket8.Profile = sketch14
pocket8.Length = 5.4
pocket8.Reversed = True

sketch15 = body.newObject("Sketcher::SketchObject", "Sketch014")
sketch15.AttachmentSupport = (doc.getObject("XZ_Plane"), [""])
sketch15.MapMode = "FlatFace"
sketch15.addGeometry([
    Part.Circle(Vector(-32.3, 49.7, 0), Vector(0, 0, 1), 0.9),
    Part.Circle(Vector(-27, 50.5, 0), Vector(0, 0, 1), 0.9),
    Part.Circle(Vector(-28.6, 61.9, 0), Vector(0, 0, 1), 0.9),
    Part.Circle(Vector(-33.9, 61.2, 0), Vector(0, 0, 1), 0.9),
], False)
sketch15.addConstraint([
    Sketcher.Constraint("Equal", 0, 1),
    Sketcher.Constraint("Equal", 1, 2),
    Sketcher.Constraint("Equal", 2, 3),
    Sketcher.Constraint("Diameter", 0, 1.8),
    Sketcher.Constraint("DistanceY", -1, 1, 0, 3, 49.708841),
    Sketcher.Constraint("DistanceX", 3, 3, -1, 1, 33.923741),
    Sketcher.Constraint("DistanceY", -1, 1, 3, 3, 61.195951),
    Sketcher.Constraint("DistanceY", 1, 3, 2, 3, 11.48711),
    Sketcher.Constraint("DistanceX", 0, 3, 2, 3, 3.73304),
    Sketcher.Constraint("DistanceX", 0, 3, -1, 1, 32.309333),
    Sketcher.Constraint("DistanceX", 1, 3, -1, 1, 26.961886),
    Sketcher.Constraint("DistanceY", -1, 1, 1, 3, 50.460376),
])
pocket9 = body.newObject("PartDesign::Pocket", "Pocket008")
pocket9.Profile = sketch15
pocket9.Type = "ThroughAll"
pocket9.Reversed = True
doc.recompute()

chamfer = body.newObject("PartDesign::Chamfer", "Chamfer")
chamfer.Base = (pocket9, edges_at(pocket9, [
    (-32.309, 0, 48.809),
    (-33.924, 0, 60.296),
    (-28.576, 0, 61.047),
    (-26.962, 0, 49.56),
]))
chamfer.Size = 1.1

sketch16 = body.newObject("Sketcher::SketchObject", "Sketch015")
sketch16.Placement = App.Placement(Vector(-6.474565, 0, 46.068923), App.Rotation(Vector(-0.990268069, 0, -0.139173101), Vector(0, 1.000000001, 0), Vector(0.139173101, 0, -0.990268069), "ZXY"))
sketch16.addGeometry(Part.Circle(Vector(22.4, -2.5, 0), Vector(0, 0, 1), 2), False)
sketch16.addConstraint([
    Sketcher.Constraint("Diameter", 0, 4.0),
    Sketcher.Constraint("DistanceY", 0, 3, -1, 1, 2.5),
    Sketcher.Constraint("DistanceX", -1, 1, 0, 3, 22.376767),
])
pocket10 = body.newObject("PartDesign::Pocket", "Pocket009")
pocket10.Profile = sketch16
pocket10.Length = 12
pocket10.Reversed = True

sketch17 = body.newObject("Sketcher::SketchObject", "Sketch016")
sketch17.Placement = App.Placement(Vector(-11.763143, 0, 83.699109), App.Rotation(Vector(0.990268069, 0, 0.139173101), Vector(0, 1.000000001, 0), Vector(-0.139173101, 0, 0.990268069), "ZXY"))
sketch17.addGeometry(Part.Circle(Vector(-22.4, -2.5, 0), Vector(0, 0, 1), 2), False)
sketch17.addConstraint([
    Sketcher.Constraint("Diameter", 0, 4.0),
    Sketcher.Constraint("DistanceY", 0, 3, -1, 1, 2.5),
    Sketcher.Constraint("DistanceX", 0, 3, -1, 1, 22.376767),
])
pocket11 = body.newObject("PartDesign::Pocket", "Pocket010")
pocket11.Profile = sketch17
pocket11.Length = 12

sketch18 = body.newObject("Sketcher::SketchObject", "Sketch017")
sketch18.AttachmentSupport = (doc.getObject("XZ_Plane"), [""])
sketch18.MapMode = "FlatFace"
sketch18.AttachmentOffset = App.Placement(Vector(0, 0, 2.7), App.Rotation())
add_polygon(sketch18, [(-24.1, -70.8), (-22.6, -68.3), (-24.1, -65.8), (-28.4, -65.8), (-28.4, -64.8), (-35.2, -64.8), (-35.2, -70.8)])
sketch18.addConstraint([
    Sketcher.Constraint("Horizontal", 2),
    Sketcher.Constraint("Vertical", 3),
    Sketcher.Constraint("Horizontal", 4),
    Sketcher.Constraint("Vertical", 5),
    Sketcher.Constraint("Horizontal", 6),
    Sketcher.Constraint("Vertical", 1, 2, 6, 2),
    Sketcher.Constraint("Equal", 0, 1),
    Sketcher.Constraint("Angle", 0, Q("60 deg")),
    Sketcher.Constraint("DistanceX", 4, 2, 4, 1, 6.8),
    Sketcher.Constraint("DistanceY", 3, 1, 3, 2, 1.1),
    Sketcher.Constraint("DistanceY", 5, 2, 5, 1, 6.1),
    Sketcher.Constraint("DistanceY", 0, 2, -1, 1, 68.35),
    Sketcher.Constraint("DistanceX", 2, 2, 2, 1, 4.330127),
    Sketcher.Constraint("DistanceX", 0, 2, -1, 1, 22.613249),
])
pocket12 = body.newObject("PartDesign::Pocket", "Pocket011")
pocket12.Profile = sketch18
pocket12.Length = 1.8
pocket12.Reversed = True

sketch19 = body.newObject("Sketcher::SketchObject", "Sketch018")
sketch19.AttachmentSupport = (doc.getObject("XZ_Plane"), [""])
sketch19.MapMode = "FlatFace"
sketch19.AttachmentOffset = App.Placement(Vector(0, 0, 6.3), App.Rotation())
add_polygon(sketch19, [(-35, -65), (-35, -71), (-28, -71), (-28, -65)])
sketch19.addConstraint([
    Sketcher.Constraint("Vertical", 0),
    Sketcher.Constraint("Horizontal", 1),
    Sketcher.Constraint("Vertical", 2),
    Sketcher.Constraint("Horizontal", 3),
    Sketcher.Constraint("DistanceX", 1, 1, 1, 2, 6.8),
    Sketcher.Constraint("DistanceY", 0, 2, 0, 1, 6.1),
    Sketcher.Constraint("DistanceY", 0, 2, -1, 1, 70.85),
    Sketcher.Constraint("DistanceX", 0, 2, -1, 1, 35.186751),
])
pocket13 = body.newObject("PartDesign::Pocket", "Pocket012")
pocket13.Profile = sketch19
pocket13.Type = "UpToFirst"

sketch20 = body.newObject("Sketcher::SketchObject", "Sketch019")
sketch20.AttachmentSupport = (doc.getObject("XZ_Plane"), [""])
sketch20.MapMode = "FlatFace"
sketch20.AttachmentOffset = App.Placement(Vector(0, 0, 4.4), App.Rotation())
add_polygon(sketch20, [(40, 70), (33, 63), (33, -63), (40, -70)])
sketch20.addConstraint([
    Sketcher.Constraint("Vertical", 1),
    Sketcher.Constraint("Vertical", 3),
    Sketcher.Constraint("Perpendicular", 0, 2),
    Sketcher.Constraint("Equal", 0, 2),
    Sketcher.Constraint("DistanceY", 3, 1, 3, 2, 140.0),
    Sketcher.Constraint("DistanceY", 1, 2, 1, 1, 125.6),
    Sketcher.Constraint("DistanceX", -1, 1, 2, 2, 40.0),
    Sketcher.Constraint("DistanceY", 2, 2, -1, 1, 70.0),
])
pocket14 = body.newObject("PartDesign::Pocket", "Pocket013")
pocket14.Profile = sketch20
pocket14.Length = 3.2

sketch21 = body.newObject("Sketcher::SketchObject", "Sketch020")
sketch21.AttachmentSupport = (doc.getObject("XZ_Plane"), [""])
sketch21.MapMode = "FlatFace"
sketch21.addGeometry(Part.Circle(Vector(36.4, -50, 0), Vector(0, 0, 1), 1.1), False)
sketch21.addConstraint([
    Sketcher.Constraint("Diameter", 0, 2.2),
    Sketcher.Constraint("DistanceY", 0, 3, -1, 1, 50.0),
    Sketcher.Constraint("DistanceX", -1, 1, 0, 3, 36.4),
])
pocket15 = body.newObject("PartDesign::Pocket", "Pocket014")
pocket15.Profile = sketch21
pocket15.Type = "UpToFirst"
pocket15.Reversed = True

sketch22 = body.newObject("Sketcher::SketchObject", "Sketch021")
sketch22.AttachmentSupport = (doc.getObject("XZ_Plane"), [""])
sketch22.MapMode = "FlatFace"
sketch22.addGeometry(Part.Circle(Vector(36.4, 0, 0), Vector(0, 0, 1), 1.1), False)
sketch22.addConstraint([
    Sketcher.Constraint("PointOnObject", 0, 3, -1),
    Sketcher.Constraint("Diameter", 0, 2.2),
    Sketcher.Constraint("DistanceX", -1, 1, 0, 3, 36.4),
])
pocket16 = body.newObject("PartDesign::Pocket", "Pocket015")
pocket16.Profile = sketch22
pocket16.Type = "UpToFirst"
pocket16.Reversed = True

sketch23 = body.newObject("Sketcher::SketchObject", "Sketch022")
sketch23.AttachmentSupport = (doc.getObject("XZ_Plane"), [""])
sketch23.MapMode = "FlatFace"
sketch23.addGeometry(Part.Circle(Vector(36.4, 50, 0), Vector(0, 0, 1), 1.1), False)
sketch23.addConstraint([
    Sketcher.Constraint("Diameter", 0, 2.2),
    Sketcher.Constraint("DistanceY", -1, 1, 0, 3, 50.0),
    Sketcher.Constraint("DistanceX", -1, 1, 0, 3, 36.4),
])
pocket17 = body.newObject("PartDesign::Pocket", "Pocket016")
pocket17.Profile = sketch23
pocket17.Type = "UpToFirst"
pocket17.Reversed = True
doc.recompute()

chamfer2 = body.newObject("PartDesign::Chamfer", "Chamfer001")
chamfer2.Base = (pocket17, edges_at(pocket17, [(36.4, 0, -51.1), (36.4, 0, -1.1), (36.4, 0, 48.9)]))
chamfer2.Size = 0.9

doc.recompute()
